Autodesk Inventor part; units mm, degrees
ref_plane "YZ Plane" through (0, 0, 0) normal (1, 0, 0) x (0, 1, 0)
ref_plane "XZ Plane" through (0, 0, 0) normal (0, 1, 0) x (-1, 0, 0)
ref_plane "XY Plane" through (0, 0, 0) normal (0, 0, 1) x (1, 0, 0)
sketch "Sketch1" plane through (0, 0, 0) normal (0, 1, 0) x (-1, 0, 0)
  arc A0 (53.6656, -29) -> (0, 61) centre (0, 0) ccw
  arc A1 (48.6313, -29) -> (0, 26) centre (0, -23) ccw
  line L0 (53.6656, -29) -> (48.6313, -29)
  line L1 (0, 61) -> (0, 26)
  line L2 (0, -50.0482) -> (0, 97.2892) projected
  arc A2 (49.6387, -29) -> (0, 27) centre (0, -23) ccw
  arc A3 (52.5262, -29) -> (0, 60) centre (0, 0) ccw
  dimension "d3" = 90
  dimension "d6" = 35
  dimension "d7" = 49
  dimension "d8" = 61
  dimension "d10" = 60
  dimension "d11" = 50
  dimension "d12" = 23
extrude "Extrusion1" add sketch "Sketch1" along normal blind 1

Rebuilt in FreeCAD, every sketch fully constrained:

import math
import FreeCAD as App
import Part
import Sketcher
Q = App.Units.Quantity

doc = App.newDocument("Part")
body = doc.addObject("PartDesign::Body", "Body")

sketch1 = doc.addObject("Sketcher::SketchObject", "Sketch")
body.addObject(sketch1)
sketch1.AttachmentSupport = (doc.XZ_Plane, [""])
sketch1.MapMode = "FlatFace"
sketch1.addGeometry([
    Part.ArcOfCircle(Part.Circle(App.Vector(0, 0, 0), App.Vector(0, 0, 1), 61), math.radians(90), math.radians(208)),
    Part.LineSegment(App.Vector(0, 61, 0), App.Vector(0, 26, 0)),
    Part.ArcOfCircle(Part.Circle(App.Vector(0, -23, 0), App.Vector(0, 0, 1), 49), math.radians(90), math.radians(187)),
    Part.LineSegment(App.Vector(-49, -29, 0), App.Vector(-54, -29, 0)),
], False)
sketch1.addConstraint([
    Sketcher.Constraint("Coincident", 0, 1, 1, 1),
    Sketcher.Constraint("Coincident", 1, 2, 2, 1),
    Sketcher.Constraint("Coincident", 2, 2, 3, 1),
    Sketcher.Constraint("Coincident", 3, 2, 0, 2),
    Sketcher.Constraint("Vertical", 1),
    Sketcher.Constraint("Horizontal", 3),
    Sketcher.Constraint("Coincident", 0, 3, -1, 1),
    Sketcher.Constraint("PointOnObject", 2, 3, -2),
    Sketcher.Constraint("PointOnObject", 0, 1, -2),
    Sketcher.Constraint("Radius", 0, Q("61 mm")),
    Sketcher.Constraint("Radius", 2, Q("49 mm")),
    Sketcher.Constraint("DistanceY", 1, 2, 1, 1, Q("35 mm")),
    Sketcher.Constraint("DistanceY", 2, 2, 0, 1, Q("90 mm")),
])
pad1 = doc.addObject("PartDesign::Pad", "Pad")
body.addObject(pad1)
pad1.Profile = sketch1
pad1.Length = 1
pad1.Reversed = True

doc.recompute()
